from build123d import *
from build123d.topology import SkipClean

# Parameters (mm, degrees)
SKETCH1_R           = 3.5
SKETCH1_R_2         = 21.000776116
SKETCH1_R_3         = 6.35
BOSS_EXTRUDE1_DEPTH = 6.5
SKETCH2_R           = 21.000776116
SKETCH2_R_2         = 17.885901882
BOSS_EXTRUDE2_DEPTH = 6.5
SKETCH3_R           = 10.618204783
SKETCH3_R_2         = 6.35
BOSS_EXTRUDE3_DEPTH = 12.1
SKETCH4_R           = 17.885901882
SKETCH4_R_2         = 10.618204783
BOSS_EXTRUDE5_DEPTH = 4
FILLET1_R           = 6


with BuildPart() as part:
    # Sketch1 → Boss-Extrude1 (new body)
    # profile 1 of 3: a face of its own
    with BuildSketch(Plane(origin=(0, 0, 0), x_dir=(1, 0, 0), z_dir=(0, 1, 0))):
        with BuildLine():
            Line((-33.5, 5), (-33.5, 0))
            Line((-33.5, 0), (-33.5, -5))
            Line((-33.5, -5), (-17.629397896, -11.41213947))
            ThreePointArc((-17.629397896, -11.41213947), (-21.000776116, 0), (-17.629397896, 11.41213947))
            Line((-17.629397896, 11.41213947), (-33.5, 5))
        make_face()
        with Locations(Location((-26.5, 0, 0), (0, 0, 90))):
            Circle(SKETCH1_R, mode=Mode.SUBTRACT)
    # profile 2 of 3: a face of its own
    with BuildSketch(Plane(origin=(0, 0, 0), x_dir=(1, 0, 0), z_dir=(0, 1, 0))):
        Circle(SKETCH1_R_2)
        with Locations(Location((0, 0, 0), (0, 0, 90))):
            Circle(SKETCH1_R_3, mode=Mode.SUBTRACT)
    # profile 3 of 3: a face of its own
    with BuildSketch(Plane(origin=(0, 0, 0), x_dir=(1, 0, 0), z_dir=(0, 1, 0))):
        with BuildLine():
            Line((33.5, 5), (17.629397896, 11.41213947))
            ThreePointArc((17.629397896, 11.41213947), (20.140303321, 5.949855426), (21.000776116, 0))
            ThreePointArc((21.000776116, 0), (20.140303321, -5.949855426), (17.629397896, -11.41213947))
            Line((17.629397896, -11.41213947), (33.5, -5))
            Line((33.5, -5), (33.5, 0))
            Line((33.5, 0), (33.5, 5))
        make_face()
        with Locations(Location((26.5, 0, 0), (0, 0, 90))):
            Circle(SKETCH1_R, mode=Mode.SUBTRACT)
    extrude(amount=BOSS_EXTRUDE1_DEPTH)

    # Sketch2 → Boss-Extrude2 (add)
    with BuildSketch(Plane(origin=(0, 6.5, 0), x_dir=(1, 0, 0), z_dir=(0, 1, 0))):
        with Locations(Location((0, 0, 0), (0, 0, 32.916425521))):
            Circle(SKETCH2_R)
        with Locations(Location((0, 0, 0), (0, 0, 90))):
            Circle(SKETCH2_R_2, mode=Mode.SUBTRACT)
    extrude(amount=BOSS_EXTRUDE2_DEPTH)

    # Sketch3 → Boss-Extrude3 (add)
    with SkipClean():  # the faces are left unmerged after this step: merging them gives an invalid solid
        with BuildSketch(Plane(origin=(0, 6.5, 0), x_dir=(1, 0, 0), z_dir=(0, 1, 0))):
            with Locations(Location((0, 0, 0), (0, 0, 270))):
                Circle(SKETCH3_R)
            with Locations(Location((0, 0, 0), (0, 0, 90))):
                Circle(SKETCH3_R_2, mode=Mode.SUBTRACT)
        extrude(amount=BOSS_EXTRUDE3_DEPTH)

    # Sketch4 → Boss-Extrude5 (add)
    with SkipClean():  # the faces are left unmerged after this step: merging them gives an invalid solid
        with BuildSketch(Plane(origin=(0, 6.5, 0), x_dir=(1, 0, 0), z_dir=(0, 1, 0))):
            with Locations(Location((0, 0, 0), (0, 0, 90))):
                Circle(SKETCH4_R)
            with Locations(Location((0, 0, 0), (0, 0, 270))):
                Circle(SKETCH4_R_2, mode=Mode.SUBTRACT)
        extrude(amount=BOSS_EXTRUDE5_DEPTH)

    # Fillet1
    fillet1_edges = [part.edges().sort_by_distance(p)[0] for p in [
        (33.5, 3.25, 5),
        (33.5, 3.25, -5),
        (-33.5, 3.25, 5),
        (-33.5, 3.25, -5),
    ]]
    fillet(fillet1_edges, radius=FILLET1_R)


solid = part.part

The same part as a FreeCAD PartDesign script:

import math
import FreeCAD as App
import Part
import Sketcher
Q = App.Units.Quantity


def edges_at(feature, points):
    """Names of the edges that pass closest to the given points."""
    edges = feature.Shape.Edges
    near = lambda p: min(range(len(edges)), key=lambda i: edges[i].distToShape(Part.Vertex(*p))[0])
    return sorted({f"Edge{near(p) + 1}" for p in points})

doc = App.newDocument("Part")
body = doc.addObject("PartDesign::Body", "Body")

sketch1 = body.newObject("Sketcher::SketchObject", "Sketch")
sketch1.AttachmentSupport = (doc.getObject("XZ_Plane"), [""])
sketch1.MapMode = "FlatFace"
sketch1.addGeometry([
    Part.LineSegment(App.Vector(-33.5, -5, 0), App.Vector(-33.5, 5, 0)),
    Part.LineSegment(App.Vector(-33.5, 5, 0), App.Vector(-17.6, 11.4, 0)),
    Part.ArcOfCircle(Part.Circle(App.Vector(0, 0, 0), App.Vector(0, 0, 1), 21), math.radians(33), math.radians(147)),
    Part.LineSegment(App.Vector(17.6, 11.4, 0), App.Vector(33.5, 5, 0)),
    Part.LineSegment(App.Vector(33.5, 5, 0), App.Vector(33.5, -5, 0)),
    Part.LineSegment(App.Vector(33.5, -5, 0), App.Vector(17.6, -11.4, 0)),
    Part.ArcOfCircle(Part.Circle(App.Vector(0, 0, 0), App.Vector(0, 0, 1), 21), math.radians(-147), math.radians(-33)),
    Part.LineSegment(App.Vector(-17.6, -11.4, 0), App.Vector(-33.5, -5, 0)),
    Part.Circle(App.Vector(-26.5, 0, 0), App.Vector(0, 0, 1), 3.5),
    Part.Circle(App.Vector(0, 0, 0), App.Vector(0, 0, 1), 6.3),
    Part.Circle(App.Vector(26.5, 0, 0), App.Vector(0, 0, 1), 3.5),
], False)
sketch1.addConstraint([
    Sketcher.Constraint("Coincident", 0, 2, 1, 1),
    Sketcher.Constraint("Coincident", 1, 2, 2, 2),
    Sketcher.Constraint("Coincident", 2, 1, 3, 1),
    Sketcher.Constraint("Coincident", 3, 2, 4, 1),
    Sketcher.Constraint("Coincident", 4, 2, 5, 1),
    Sketcher.Constraint("Coincident", 5, 2, 6, 2),
    Sketcher.Constraint("Coincident", 6, 1, 7, 1),
    Sketcher.Constraint("Coincident", 7, 2, 0, 1),
    Sketcher.Constraint("Vertical", 0),
    Sketcher.Constraint("Vertical", 4),
    Sketcher.Constraint("Coincident", 2, 3, -1, 1),
    Sketcher.Constraint("Coincident", 6, 3, -1, 1),
    Sketcher.Constraint("Coincident", 9, 3, -1, 1),
    Sketcher.Constraint("Equal", 2, 6),
    Sketcher.Constraint("Equal", 8, 10),
    Sketcher.Constraint("Symmetric", 8, 3, 10, 3, -1, 1),
    Sketcher.Constraint("Symmetric", 0, 2, 4, 2, -1, 1),
    Sketcher.Constraint("PointOnObject", 8, 3, -1),
    Sketcher.Constraint("Parallel", 1, 5),
    Sketcher.Constraint("Parallel", 3, 7),
    Sketcher.Constraint("Horizontal", 1, 2, 2, 1),
    Sketcher.Constraint("Horizontal", 0, 2, 3, 2),
    Sketcher.Constraint("Horizontal", 5, 2, 6, 1),
    Sketcher.Constraint("Diameter", 8, Q("7 mm")),
    Sketcher.Constraint("Diameter", 9, Q("12.7 mm")),
    Sketcher.Constraint("DistanceY", 0, 1, 0, 2, Q("10 mm")),
    Sketcher.Constraint("Angle", 1, Q("22 deg")),
    Sketcher.Constraint("DistanceX", 8, 3, 10, 3, Q("53 mm")),
    Sketcher.Constraint("DistanceX", 0, 2, 8, 3, Q("7 mm")),
    Sketcher.Constraint("Radius", 2, Q("21.000776 mm")),
])
pad1 = body.newObject("PartDesign::Pad", "Pad")
pad1.Profile = sketch1
pad1.Length = 6.5
pad1.Reversed = True

sketch2 = body.newObject("Sketcher::SketchObject", "Sketch001")
sketch2.AttachmentSupport = (doc.getObject("XZ_Plane"), [""])
sketch2.MapMode = "FlatFace"
sketch2.AttachmentOffset = App.Placement(App.Vector(0, 0, -6.5), App.Rotation())
sketch2.addGeometry([
    Part.Circle(App.Vector(0, 0, 0), App.Vector(0, 0, 1), 21),
    Part.Circle(App.Vector(0, 0, 0), App.Vector(0, 0, 1), 18),
], False)
sketch2.addConstraint([
    Sketcher.Constraint("Coincident", 0, 3, -1, 1),
    Sketcher.Constraint("Coincident", 1, 3, -1, 1),
    Sketcher.Constraint("Diameter", 0, Q("42.001552 mm")),
    Sketcher.Constraint("Diameter", 1, Q("35.771804 mm")),
])
pad2 = body.newObject("PartDesign::Pad", "Pad001")
pad2.Profile = sketch2
pad2.Length = 6.5
pad2.Reversed = True

sketch3 = body.newObject("Sketcher::SketchObject", "Sketch002")
sketch3.AttachmentSupport = (doc.getObject("XZ_Plane"), [""])
sketch3.MapMode = "FlatFace"
sketch3.AttachmentOffset = App.Placement(App.Vector(0, 0, -6.5), App.Rotation())
sketch3.addGeometry([
    Part.Circle(App.Vector(0, 0, 0), App.Vector(0, 0, 1), 11),
    Part.Circle(App.Vector(0, 0, 0), App.Vector(0, 0, 1), 6),
], False)
sketch3.addConstraint([
    Sketcher.Constraint("Coincident", 0, 3, -1, 1),
    Sketcher.Constraint("Coincident", 1, 3, -1, 1),
    Sketcher.Constraint("Diameter", 1, Q("12.7 mm")),
    Sketcher.Constraint("Diameter", 0, Q("21.23641 mm")),
])
pad3 = body.newObject("PartDesign::Pad", "Pad002")
pad3.Profile = sketch3
pad3.Length = 12.1
pad3.Reversed = True

sketch4 = body.newObject("Sketcher::SketchObject", "Sketch003")
sketch4.AttachmentSupport = (doc.getObject("XZ_Plane"), [""])
sketch4.MapMode = "FlatFace"
sketch4.AttachmentOffset = App.Placement(App.Vector(0, 0, -6.5), App.Rotation())
sketch4.addGeometry([
    Part.Circle(App.Vector(0, 0, 0), App.Vector(0, 0, 1), 18),
    Part.Circle(App.Vector(0, 0, 0), App.Vector(0, 0, 1), 11),
], False)
sketch4.addConstraint([
    Sketcher.Constraint("Coincident", 0, 3, -1, 1),
    Sketcher.Constraint("Coincident", 1, 3, -1, 1),
    Sketcher.Constraint("Diameter", 1, Q("21.23641 mm")),
    Sketcher.Constraint("Diameter", 0, Q("35.771804 mm")),
])
pad4 = body.newObject("PartDesign::Pad", "Pad003")
pad4.Profile = sketch4
pad4.Length = 4
pad4.Reversed = True
doc.recompute()

fillet = body.newObject("PartDesign::Fillet", "Fillet")
fillet.Base = (pad4, edges_at(pad4, [
    (33.5, 3.25, 5),
    (33.5, 3.25, -5),
    (-33.5, 3.25, 5),
    (-33.5, 3.25, -5),
]))
fillet.Radius = 6

doc.recompute()
